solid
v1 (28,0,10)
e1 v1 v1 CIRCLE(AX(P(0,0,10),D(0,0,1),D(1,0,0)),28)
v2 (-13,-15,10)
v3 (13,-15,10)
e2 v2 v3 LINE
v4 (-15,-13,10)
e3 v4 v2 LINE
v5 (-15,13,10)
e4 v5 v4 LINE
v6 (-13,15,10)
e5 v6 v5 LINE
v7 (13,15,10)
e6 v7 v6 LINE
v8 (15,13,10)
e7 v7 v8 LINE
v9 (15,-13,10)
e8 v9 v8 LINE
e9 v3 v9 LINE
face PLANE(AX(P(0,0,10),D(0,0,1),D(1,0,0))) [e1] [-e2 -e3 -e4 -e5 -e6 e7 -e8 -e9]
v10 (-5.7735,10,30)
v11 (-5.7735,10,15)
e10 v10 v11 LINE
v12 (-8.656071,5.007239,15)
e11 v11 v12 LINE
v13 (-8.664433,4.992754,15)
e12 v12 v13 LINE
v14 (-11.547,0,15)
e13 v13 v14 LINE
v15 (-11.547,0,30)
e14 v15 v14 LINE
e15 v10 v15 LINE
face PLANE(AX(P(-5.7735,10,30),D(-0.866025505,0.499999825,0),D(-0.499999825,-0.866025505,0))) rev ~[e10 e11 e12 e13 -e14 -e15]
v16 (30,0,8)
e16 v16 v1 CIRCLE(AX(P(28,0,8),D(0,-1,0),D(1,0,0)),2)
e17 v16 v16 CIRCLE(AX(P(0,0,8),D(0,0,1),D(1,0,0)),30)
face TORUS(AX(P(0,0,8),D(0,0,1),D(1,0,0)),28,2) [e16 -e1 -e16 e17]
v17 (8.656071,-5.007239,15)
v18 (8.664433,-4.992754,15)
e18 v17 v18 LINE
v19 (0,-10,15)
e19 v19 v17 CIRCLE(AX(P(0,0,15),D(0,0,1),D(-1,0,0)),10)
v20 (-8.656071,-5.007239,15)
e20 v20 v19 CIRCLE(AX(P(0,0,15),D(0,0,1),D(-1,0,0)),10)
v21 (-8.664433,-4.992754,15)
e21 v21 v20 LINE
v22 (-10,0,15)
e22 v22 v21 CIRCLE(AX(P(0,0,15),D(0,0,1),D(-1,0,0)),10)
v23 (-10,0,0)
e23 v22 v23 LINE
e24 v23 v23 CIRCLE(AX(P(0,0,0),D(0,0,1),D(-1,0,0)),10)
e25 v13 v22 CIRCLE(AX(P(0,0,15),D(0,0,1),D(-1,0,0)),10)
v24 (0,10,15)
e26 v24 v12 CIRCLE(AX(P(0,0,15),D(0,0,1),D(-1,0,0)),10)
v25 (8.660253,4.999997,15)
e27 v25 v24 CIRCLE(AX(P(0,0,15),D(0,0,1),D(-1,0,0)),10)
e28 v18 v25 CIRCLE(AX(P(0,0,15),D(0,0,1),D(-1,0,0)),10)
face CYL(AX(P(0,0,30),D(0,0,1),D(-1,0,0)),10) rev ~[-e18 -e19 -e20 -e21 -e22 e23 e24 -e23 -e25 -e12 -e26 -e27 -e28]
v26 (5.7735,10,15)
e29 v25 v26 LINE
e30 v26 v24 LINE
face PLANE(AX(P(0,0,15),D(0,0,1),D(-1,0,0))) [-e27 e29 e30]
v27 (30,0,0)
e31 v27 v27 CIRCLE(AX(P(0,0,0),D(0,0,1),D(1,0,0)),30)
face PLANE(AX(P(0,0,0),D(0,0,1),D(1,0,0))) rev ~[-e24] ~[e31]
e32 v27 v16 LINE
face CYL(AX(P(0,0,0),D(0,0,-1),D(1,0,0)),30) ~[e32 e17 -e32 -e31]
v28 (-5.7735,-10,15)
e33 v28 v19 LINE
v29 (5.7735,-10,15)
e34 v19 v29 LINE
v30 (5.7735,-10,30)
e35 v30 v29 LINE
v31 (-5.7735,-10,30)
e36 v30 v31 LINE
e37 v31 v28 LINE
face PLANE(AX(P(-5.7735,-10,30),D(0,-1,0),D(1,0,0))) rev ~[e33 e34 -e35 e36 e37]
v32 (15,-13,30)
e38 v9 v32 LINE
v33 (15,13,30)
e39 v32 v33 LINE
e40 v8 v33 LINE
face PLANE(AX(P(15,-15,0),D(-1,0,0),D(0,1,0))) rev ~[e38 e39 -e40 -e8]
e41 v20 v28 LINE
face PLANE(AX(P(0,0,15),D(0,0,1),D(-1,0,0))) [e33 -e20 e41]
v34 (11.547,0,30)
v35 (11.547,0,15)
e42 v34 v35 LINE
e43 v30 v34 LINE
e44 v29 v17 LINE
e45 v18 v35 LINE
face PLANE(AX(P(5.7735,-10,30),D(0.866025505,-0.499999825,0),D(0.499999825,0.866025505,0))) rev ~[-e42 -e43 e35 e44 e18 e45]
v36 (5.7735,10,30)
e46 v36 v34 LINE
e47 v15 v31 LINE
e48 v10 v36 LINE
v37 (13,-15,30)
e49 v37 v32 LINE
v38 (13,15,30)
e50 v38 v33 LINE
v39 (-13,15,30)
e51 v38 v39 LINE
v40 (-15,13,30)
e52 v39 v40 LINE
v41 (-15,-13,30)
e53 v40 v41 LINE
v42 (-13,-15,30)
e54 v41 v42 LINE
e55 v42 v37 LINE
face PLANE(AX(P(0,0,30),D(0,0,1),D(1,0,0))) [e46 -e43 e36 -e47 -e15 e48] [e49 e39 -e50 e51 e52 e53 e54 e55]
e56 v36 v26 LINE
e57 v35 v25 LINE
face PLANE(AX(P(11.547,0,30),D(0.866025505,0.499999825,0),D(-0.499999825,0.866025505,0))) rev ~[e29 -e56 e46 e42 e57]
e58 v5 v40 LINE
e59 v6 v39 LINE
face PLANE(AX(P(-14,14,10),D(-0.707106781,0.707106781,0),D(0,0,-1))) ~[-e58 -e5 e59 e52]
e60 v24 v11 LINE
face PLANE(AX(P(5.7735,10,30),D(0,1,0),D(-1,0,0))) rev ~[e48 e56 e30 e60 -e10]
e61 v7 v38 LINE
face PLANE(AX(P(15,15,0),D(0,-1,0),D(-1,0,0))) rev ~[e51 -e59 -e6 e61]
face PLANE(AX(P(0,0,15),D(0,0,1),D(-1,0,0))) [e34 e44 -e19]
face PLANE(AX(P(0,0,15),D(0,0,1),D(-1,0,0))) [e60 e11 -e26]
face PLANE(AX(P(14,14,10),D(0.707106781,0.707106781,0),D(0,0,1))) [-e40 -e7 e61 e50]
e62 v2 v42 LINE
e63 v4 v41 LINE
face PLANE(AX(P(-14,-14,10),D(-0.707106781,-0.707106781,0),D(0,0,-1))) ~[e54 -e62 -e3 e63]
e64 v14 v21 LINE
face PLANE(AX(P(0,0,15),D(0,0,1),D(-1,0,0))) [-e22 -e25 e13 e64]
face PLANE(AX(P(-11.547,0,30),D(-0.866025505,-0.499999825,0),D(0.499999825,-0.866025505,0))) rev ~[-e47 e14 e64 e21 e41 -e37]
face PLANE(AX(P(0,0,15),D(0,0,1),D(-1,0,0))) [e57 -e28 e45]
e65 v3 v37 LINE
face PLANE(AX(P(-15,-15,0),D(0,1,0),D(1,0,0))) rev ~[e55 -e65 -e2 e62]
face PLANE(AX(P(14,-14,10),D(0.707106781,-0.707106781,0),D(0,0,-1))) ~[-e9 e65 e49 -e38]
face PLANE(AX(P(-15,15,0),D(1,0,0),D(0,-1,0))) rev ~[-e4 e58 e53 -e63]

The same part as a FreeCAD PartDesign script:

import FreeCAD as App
import Part
import Sketcher

V = App.Vector
Q = App.Units.Quantity


def edges_at(feature, points):
    """Names of the edges that pass closest to the given points."""
    edges = feature.Shape.Edges
    near = lambda p: min(range(len(edges)), key=lambda i: edges[i].distToShape(Part.Vertex(*p))[0])
    return sorted({f"Edge{near(p) + 1}" for p in points})


def add_polygon(sketch, points):
    """Adds a closed chain of lines whose ends are joined by coincident constraints."""
    first, n = sketch.GeometryCount, len(points)
    for a, b in zip(points, points[1:] + points[:1]):
        sketch.addGeometry(Part.LineSegment(App.Vector(*a, 0), App.Vector(*b, 0)), False)
    for i in range(n):
        sketch.addConstraint(Sketcher.Constraint("Coincident", first + i, 2, first + (i + 1) % n, 1))

doc = App.newDocument("Part")
params = doc.addObject("Spreadsheet::Sheet", "Params")
for row, (alias, value) in enumerate([
    ("sketch1_diameter", "60 mm"),
    ("sketch1_width", "30 mm"),
    ("pad1_length", "10 mm"),
    ("sketch2_width", "30 mm"),
    ("pad2_length", "30 mm"),
    ("pocket1_length", "15 mm"),
    ("sketch4_diameter", "20 mm"),
    ("pocket2_length", "55 mm"),
    ("fillet_radius", "2 mm"),
    ("chamfer_size", "2 mm"),
], start=1):
    params.set(f"A{row}", alias)
    params.set(f"B{row}", "=" + value)
    params.setAlias(f"B{row}", alias)

body = doc.addObject("PartDesign::Body", "Body")

sketch1 = body.newObject("Sketcher::SketchObject", "Sketch")
sketch1.AttachmentSupport = (doc.getObject("XY_Plane"), [""])
sketch1.MapMode = "FlatFace"
sketch1.addGeometry(Part.Circle(V(0, 0, 0), V(0, 0, 1), 30), False)
add_polygon(sketch1, [(-15, 15), (15, 15), (15, -15), (-15, -15)])
sketch1.addConstraint(Sketcher.Constraint("Horizontal", 1))
sketch1.addConstraint(Sketcher.Constraint("Vertical", 2))
sketch1.addConstraint(Sketcher.Constraint("Horizontal", 3))
sketch1.addConstraint(Sketcher.Constraint("Vertical", 4))
sketch1.addConstraint(Sketcher.Constraint("Coincident", 0, 3, -1, 1))
sketch1.addConstraint(Sketcher.Constraint("Symmetric", 1, 2, 3, 2, -1, 1))
sketch1.addConstraint(Sketcher.Constraint("Equal", 3, 2))
sketch1.addConstraint(Sketcher.Constraint("Diameter", 0, Q("60 mm")))
sketch1.addConstraint(Sketcher.Constraint("DistanceX", 1, 1, 1, 2, Q("30 mm")))
sketch1.setExpression("Constraints[11]", "Params.sketch1_diameter")
sketch1.setExpression("Constraints[12]", "Params.sketch1_width")
pad1 = body.newObject("PartDesign::Pad", "Pad")
pad1.Profile = sketch1
pad1.setExpression("Length", "Params.pad1_length")

sketch2 = body.newObject("Sketcher::SketchObject", "Sketch001")
sketch2.AttachmentSupport = (doc.getObject("XY_Plane"), [""])
sketch2.MapMode = "FlatFace"
add_polygon(sketch2, [(15, -15), (15, 15), (-15, 15), (-15, -15)])
sketch2.addConstraint(Sketcher.Constraint("Vertical", 0))
sketch2.addConstraint(Sketcher.Constraint("Horizontal", 1))
sketch2.addConstraint(Sketcher.Constraint("Vertical", 2))
sketch2.addConstraint(Sketcher.Constraint("Horizontal", 3))
sketch2.addConstraint(Sketcher.Constraint("Symmetric", 0, 2, 2, 2, -1, 1))
sketch2.addConstraint(Sketcher.Constraint("Equal", 3, 0))
sketch2.addConstraint(Sketcher.Constraint("DistanceX", 1, 2, 1, 1, Q("30 mm")))
sketch2.setExpression("Constraints[10]", "Params.sketch2_width")
pad2 = body.newObject("PartDesign::Pad", "Pad001")
pad2.Profile = sketch2
pad2.setExpression("Length", "Params.pad2_length")

sketch3 = body.newObject("Sketcher::SketchObject", "Sketch002")
sketch3.AttachmentSupport = (doc.getObject("XY_Plane"), [""])
sketch3.MapMode = "FlatFace"
sketch3.AttachmentOffset = App.Placement(V(0, 0, 30), App.Rotation())
add_polygon(sketch3, [(5.7735, 10), (-5.7735, 10), (-11.547, 0), (-5.7735, -10), (5.7735, -10), (11.547, 0)])
sketch3.addConstraint(Sketcher.Constraint("Horizontal", 0))
sketch3.addConstraint(Sketcher.Constraint("Horizontal", 3))
sketch3.addConstraint(Sketcher.Constraint("Symmetric", 0, 2, 3, 2, -1, 1))
sketch3.addConstraint(Sketcher.Constraint("Symmetric", 1, 2, 4, 2, -1, 1))
sketch3.addConstraint(Sketcher.Constraint("PointOnObject", 1, 2, -1))
sketch3.addConstraint(Sketcher.Constraint("Parallel", 2, 5))
sketch3.addConstraint(Sketcher.Constraint("Vertical", 0, 2, 2, 2))
sketch3.addConstraint(Sketcher.Constraint("DistanceY", 2, 2, 0, 2, Q("20 mm")))
sketch3.addConstraint(Sketcher.Constraint("Angle", 1, Q("-120 deg")))
sketch3.addConstraint(Sketcher.Constraint("DistanceX", 1, 2, 4, 2, Q("23.094 mm")))
pocket1 = body.newObject("PartDesign::Pocket", "Pocket")
pocket1.Profile = sketch3
pocket1.setExpression("Length", "Params.pocket1_length")

sketch4 = body.newObject("Sketcher::SketchObject", "Sketch003")
sketch4.AttachmentSupport = (doc.getObject("XY_Plane"), [""])
sketch4.MapMode = "FlatFace"
sketch4.AttachmentOffset = App.Placement(V(0, 0, 30), App.Rotation())
sketch4.addGeometry(Part.Circle(V(0, 0, 0), V(0, 0, 1), 10), False)
sketch4.addConstraint(Sketcher.Constraint("Coincident", 0, 3, -1, 1))
sketch4.addConstraint(Sketcher.Constraint("Diameter", 0, Q("20 mm")))
sketch4.setExpression("Constraints[1]", "Params.sketch4_diameter")
pocket2 = body.newObject("PartDesign::Pocket", "Pocket001")
pocket2.Profile = sketch4
pocket2.setExpression("Length", "Params.pocket2_length")
doc.recompute()

fillet = body.newObject("PartDesign::Fillet", "Fillet")
fillet.Base = (pocket2, edges_at(pocket2, [(-27.97, -10.848, 10)]))
fillet.setExpression("Radius", "Params.fillet_radius")
doc.recompute()

chamfer = body.newObject("PartDesign::Chamfer", "Chamfer")
chamfer.Base = (fillet, edges_at(fillet, [
    (-15, -15, 20),
    (-15, 15, 20),
    (15, 15, 20),
    (15, -15, 20),
]))
chamfer.setExpression("Size", "Params.chamfer_size")

doc.recompute()
